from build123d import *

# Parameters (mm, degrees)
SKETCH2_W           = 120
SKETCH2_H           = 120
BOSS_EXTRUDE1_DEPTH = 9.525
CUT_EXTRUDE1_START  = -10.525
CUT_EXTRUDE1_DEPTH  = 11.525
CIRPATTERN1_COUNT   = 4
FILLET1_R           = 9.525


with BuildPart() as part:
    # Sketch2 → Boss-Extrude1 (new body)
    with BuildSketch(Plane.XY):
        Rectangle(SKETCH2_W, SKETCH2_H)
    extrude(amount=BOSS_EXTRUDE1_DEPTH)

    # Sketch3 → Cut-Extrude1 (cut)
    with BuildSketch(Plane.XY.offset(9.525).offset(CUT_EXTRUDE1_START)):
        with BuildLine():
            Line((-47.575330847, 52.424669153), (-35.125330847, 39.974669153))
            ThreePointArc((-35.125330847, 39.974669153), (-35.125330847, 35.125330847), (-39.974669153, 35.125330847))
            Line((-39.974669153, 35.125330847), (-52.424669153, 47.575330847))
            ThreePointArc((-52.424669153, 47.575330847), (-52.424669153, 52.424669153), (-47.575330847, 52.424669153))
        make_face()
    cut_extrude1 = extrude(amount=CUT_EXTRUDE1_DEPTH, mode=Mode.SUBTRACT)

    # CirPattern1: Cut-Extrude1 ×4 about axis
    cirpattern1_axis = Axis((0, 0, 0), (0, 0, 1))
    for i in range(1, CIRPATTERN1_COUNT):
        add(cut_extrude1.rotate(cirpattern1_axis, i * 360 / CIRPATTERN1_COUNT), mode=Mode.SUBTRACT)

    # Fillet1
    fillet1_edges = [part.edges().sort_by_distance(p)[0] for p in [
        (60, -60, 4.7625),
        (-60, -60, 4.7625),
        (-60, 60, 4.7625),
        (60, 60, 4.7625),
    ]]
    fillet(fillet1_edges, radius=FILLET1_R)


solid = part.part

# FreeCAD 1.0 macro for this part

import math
import FreeCAD as App
import Part
import Sketcher
Q = App.Units.Quantity


def edges_at(feature, points):
    """Names of the edges that pass closest to the given points."""
    edges = feature.Shape.Edges
    near = lambda p: min(range(len(edges)), key=lambda i: edges[i].distToShape(Part.Vertex(*p))[0])
    return sorted({f"Edge{near(p) + 1}" for p in points})

doc = App.newDocument("Part")
body = doc.addObject("PartDesign::Body", "Body")

# Sketch on XY plane
sketch1 = body.newObject("Sketcher::SketchObject", "Sketch")
sketch1.AttachmentSupport = (doc.getObject("XY_Plane"), [""])
sketch1.MapMode = "FlatFace"
sketch1.addGeometry([
    Part.LineSegment(App.Vector(-60, 60, 0), App.Vector(-60, -60, 0)),
    Part.LineSegment(App.Vector(-60, -60, 0), App.Vector(60, -60, 0)),
    Part.LineSegment(App.Vector(60, -60, 0), App.Vector(60, 60, 0)),
    Part.LineSegment(App.Vector(60, 60, 0), App.Vector(-60, 60, 0)),
], False)
sketch1.addConstraint([
    Sketcher.Constraint("Coincident", 0, 2, 1, 1),
    Sketcher.Constraint("Coincident", 1, 2, 2, 1),
    Sketcher.Constraint("Coincident", 2, 2, 3, 1),
    Sketcher.Constraint("Coincident", 3, 2, 0, 1),
    Sketcher.Constraint("Vertical", 0),
    Sketcher.Constraint("Horizontal", 1),
    Sketcher.Constraint("Vertical", 2),
    Sketcher.Constraint("Horizontal", 3),
    Sketcher.Constraint("Symmetric", 0, 2, 2, 2, -1, 1),
    Sketcher.Constraint("Equal", 3, 0),
    Sketcher.Constraint("DistanceX", 1, 1, 1, 2, Q("120 mm")),
])
pad1 = body.newObject("PartDesign::Pad", "Pad")
pad1.Profile = sketch1
pad1.Length = Q("0.375 in")

# Sketch on XY plane
sketch2 = body.newObject("Sketcher::SketchObject", "Sketch001")
sketch2.AttachmentSupport = (doc.getObject("XY_Plane"), [""])
sketch2.MapMode = "FlatFace"
sketch2.AttachmentOffset = App.Placement(App.Vector(0, 0, -1), App.Rotation())
sketch2.addGeometry([
    Part.LineSegment(App.Vector(-35.1, 40, 0), App.Vector(-47.6, 52.4, 0)),
    Part.ArcOfCircle(Part.Circle(App.Vector(-50, 50, 0), App.Vector(0, 0, 1), 3.4), math.radians(45), math.radians(225)),
    Part.LineSegment(App.Vector(-52.4, 47.6, 0), App.Vector(-40, 35.1, 0)),
    Part.ArcOfCircle(Part.Circle(App.Vector(-37.5, 37.5, 0), App.Vector(0, 0, 1), 3.4), math.radians(-135), math.radians(45)),
], False)
sketch2.addConstraint([
    Sketcher.Constraint("Tangent", 0, 2, 1, 1),
    Sketcher.Constraint("Tangent", 1, 2, 2, 1),
    Sketcher.Constraint("Tangent", 2, 2, 3, 1),
    Sketcher.Constraint("Tangent", 3, 2, 0, 1),
    Sketcher.Constraint("Equal", 1, 3),
    Sketcher.Constraint("Angle", 0, Q("135 deg")),
    Sketcher.Constraint("Radius", 1, Q("0.135 in")),
    Sketcher.Constraint("DistanceX", 1, 3, -1, 1, Q("50 mm")),
    Sketcher.Constraint("DistanceY", -1, 1, 1, 3, Q("50 mm")),
    Sketcher.Constraint("DistanceX", 3, 3, -1, 1, Q("37.55 mm")),
])
pocket1 = body.newObject("PartDesign::Pocket", "Pocket")
pocket1.Profile = sketch2
pocket1.Length = 11.525
pocket1.Reversed = True
doc.recompute()

polarpattern = body.newObject("PartDesign::PolarPattern", "PolarPattern")
polarpattern.Originals = [pocket1]
polarpattern.Axis = (doc.getObject("Z_Axis"), [""])
polarpattern.Angle = 360
polarpattern.Occurrences = 4
body.Tip = polarpattern
doc.recompute()

fillet = body.newObject("PartDesign::Fillet", "Fillet")
fillet.Base = (polarpattern, edges_at(polarpattern, [
    (60, -60, 4.763),
    (-60, -60, 4.763),
    (-60, 60, 4.763),
    (60, 60, 4.763),
]))
fillet.Radius = Q("0.375 in")

doc.recompute()
